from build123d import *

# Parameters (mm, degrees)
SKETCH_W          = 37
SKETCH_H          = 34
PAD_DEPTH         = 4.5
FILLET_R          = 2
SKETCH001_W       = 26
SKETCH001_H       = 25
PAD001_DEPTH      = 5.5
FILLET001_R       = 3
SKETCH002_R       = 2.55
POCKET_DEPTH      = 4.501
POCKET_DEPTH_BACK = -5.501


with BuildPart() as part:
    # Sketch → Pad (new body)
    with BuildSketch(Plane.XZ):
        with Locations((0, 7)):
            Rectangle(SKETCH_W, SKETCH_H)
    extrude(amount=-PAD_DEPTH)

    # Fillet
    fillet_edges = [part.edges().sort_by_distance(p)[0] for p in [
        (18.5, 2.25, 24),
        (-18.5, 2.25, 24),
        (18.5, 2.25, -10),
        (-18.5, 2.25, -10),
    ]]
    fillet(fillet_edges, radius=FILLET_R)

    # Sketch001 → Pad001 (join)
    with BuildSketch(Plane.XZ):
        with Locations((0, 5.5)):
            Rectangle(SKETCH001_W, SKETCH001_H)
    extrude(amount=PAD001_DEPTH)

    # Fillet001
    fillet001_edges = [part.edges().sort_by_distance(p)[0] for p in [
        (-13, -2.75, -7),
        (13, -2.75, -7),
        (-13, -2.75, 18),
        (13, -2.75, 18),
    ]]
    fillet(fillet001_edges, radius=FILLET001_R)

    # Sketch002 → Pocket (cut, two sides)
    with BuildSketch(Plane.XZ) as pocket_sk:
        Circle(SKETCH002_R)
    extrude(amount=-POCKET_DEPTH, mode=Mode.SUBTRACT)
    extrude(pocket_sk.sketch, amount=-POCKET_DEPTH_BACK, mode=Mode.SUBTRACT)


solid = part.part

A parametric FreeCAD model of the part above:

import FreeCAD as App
import Part
import Sketcher
from FreeCAD import Vector


def edges_at(feature, points):
    """Names of the edges that pass closest to the given points."""
    edges = feature.Shape.Edges
    near = lambda p: min(range(len(edges)), key=lambda i: edges[i].distToShape(Part.Vertex(*p))[0])
    return sorted({f"Edge{near(p) + 1}" for p in points})


def add_polygon(sketch, points):
    """Adds a closed chain of lines whose ends are joined by coincident constraints."""
    first, n = sketch.GeometryCount, len(points)
    for a, b in zip(points, points[1:] + points[:1]):
        sketch.addGeometry(Part.LineSegment(App.Vector(*a, 0), App.Vector(*b, 0)), False)
    for i in range(n):
        sketch.addConstraint(Sketcher.Constraint("Coincident", first + i, 2, first + (i + 1) % n, 1))

doc = App.newDocument("Part")
params = doc.addObject("Spreadsheet::Sheet", "Params")
for row, (alias, value) in enumerate([
    ("sketch1_width", "37 mm"),
    ("sketch1_height", "34 mm"),
    ("pad1_length", "4.5 mm"),
    ("fillet_radius", "2 mm"),
    ("sketch2_width", "26 mm"),
    ("sketch2_height", "25 mm"),
    ("pad2_length", "5.5 mm"),
    ("fillet2_radius", "3 mm"),
    ("sketch3_diameter", "5.1 mm"),
], start=1):
    params.set(f"A{row}", alias)
    params.set(f"B{row}", "=" + value)
    params.setAlias(f"B{row}", alias)

body = doc.addObject("PartDesign::Body", "Body")

# Sketch on XZ plane
sketch1 = doc.addObject("Sketcher::SketchObject", "Sketch")
body.addObject(sketch1)
sketch1.AttachmentSupport = (doc.XZ_Plane, [""])
sketch1.MapMode = "FlatFace"
add_polygon(sketch1, [(-18, 24), (-18, -10), (18, -10), (18, 24)])  # lines 0-3
sketch1.addConstraint(Sketcher.Constraint("Vertical", 0))
sketch1.addConstraint(Sketcher.Constraint("Horizontal", 1))
sketch1.addConstraint(Sketcher.Constraint("Vertical", 2))
sketch1.addConstraint(Sketcher.Constraint("Horizontal", 3))
sketch1.addConstraint(Sketcher.Constraint("DistanceX", 1, 1, 1, 2, 37.0))
sketch1.addConstraint(Sketcher.Constraint("DistanceY", 0, 2, 0, 1, 34.0))
sketch1.addConstraint(Sketcher.Constraint("DistanceY", 0, 2, -1, 1, 10.0))
sketch1.addConstraint(Sketcher.Constraint("DistanceX", 0, 2, -1, 1, 18.5))
sketch1.setExpression("Constraints[8]", "Params.sketch1_width")
sketch1.setExpression("Constraints[9]", "Params.sketch1_height")
pad1 = doc.addObject("PartDesign::Pad", "Pad")
body.addObject(pad1)
pad1.Profile = sketch1
pad1.setExpression("Length", "Params.pad1_length")
pad1.Reversed = True
doc.recompute()

fillet = doc.addObject("PartDesign::Fillet", "Fillet")
body.addObject(fillet)
fillet.Base = (pad1, edges_at(pad1, [
    (18.5, 2.25, 24),
    (-18.5, 2.25, 24),
    (18.5, 2.25, -10),
    (-18.5, 2.25, -10),
]))
fillet.setExpression("Radius", "Params.fillet_radius")

# Sketch on XZ plane
sketch2 = doc.addObject("Sketcher::SketchObject", "Sketch001")
body.addObject(sketch2)
sketch2.AttachmentSupport = (doc.XZ_Plane, [""])
sketch2.MapMode = "FlatFace"
add_polygon(sketch2, [(-13, 18), (-13, -7), (13, -7), (13, 18)])  # lines 0-3
sketch2.addConstraint(Sketcher.Constraint("Vertical", 0))
sketch2.addConstraint(Sketcher.Constraint("Horizontal", 1))
sketch2.addConstraint(Sketcher.Constraint("Vertical", 2))
sketch2.addConstraint(Sketcher.Constraint("Horizontal", 3))
sketch2.addConstraint(Sketcher.Constraint("DistanceX", 1, 1, 1, 2, 26.0))
sketch2.addConstraint(Sketcher.Constraint("DistanceY", 0, 2, 0, 1, 25.0))
sketch2.addConstraint(Sketcher.Constraint("DistanceX", 0, 2, -1, 1, 13.0))
sketch2.addConstraint(Sketcher.Constraint("DistanceY", 0, 2, -1, 1, 7.0))
sketch2.setExpression("Constraints[8]", "Params.sketch2_width")
sketch2.setExpression("Constraints[9]", "Params.sketch2_height")
pad2 = doc.addObject("PartDesign::Pad", "Pad001")
body.addObject(pad2)
pad2.Profile = sketch2
pad2.setExpression("Length", "Params.pad2_length")
doc.recompute()

fillet2 = doc.addObject("PartDesign::Fillet", "Fillet001")
body.addObject(fillet2)
fillet2.Base = (pad2, edges_at(pad2, [
    (-13, -2.75, -7),
    (13, -2.75, -7),
    (-13, -2.75, 18),
    (13, -2.75, 18),
]))
fillet2.setExpression("Radius", "Params.fillet2_radius")

# Sketch on XZ plane
sketch3 = doc.addObject("Sketcher::SketchObject", "Sketch002")
body.addObject(sketch3)
sketch3.AttachmentSupport = (doc.XZ_Plane, [""])
sketch3.MapMode = "FlatFace"
sketch3.addGeometry(Part.Circle(Vector(0, 0, 0), Vector(0, 0, 1), 2.5), False)
sketch3.addConstraint(Sketcher.Constraint("Coincident", 0, 3, -1, 1))
sketch3.addConstraint(Sketcher.Constraint("Diameter", 0, 5.1))
sketch3.setExpression("Constraints[1]", "Params.sketch3_diameter")
pocket1 = doc.addObject("PartDesign::Pocket", "Pocket")
body.addObject(pocket1)
pocket1.Profile = sketch3
pocket1.Type = "ThroughAll"
pocket1.Midplane = True

doc.recompute()
